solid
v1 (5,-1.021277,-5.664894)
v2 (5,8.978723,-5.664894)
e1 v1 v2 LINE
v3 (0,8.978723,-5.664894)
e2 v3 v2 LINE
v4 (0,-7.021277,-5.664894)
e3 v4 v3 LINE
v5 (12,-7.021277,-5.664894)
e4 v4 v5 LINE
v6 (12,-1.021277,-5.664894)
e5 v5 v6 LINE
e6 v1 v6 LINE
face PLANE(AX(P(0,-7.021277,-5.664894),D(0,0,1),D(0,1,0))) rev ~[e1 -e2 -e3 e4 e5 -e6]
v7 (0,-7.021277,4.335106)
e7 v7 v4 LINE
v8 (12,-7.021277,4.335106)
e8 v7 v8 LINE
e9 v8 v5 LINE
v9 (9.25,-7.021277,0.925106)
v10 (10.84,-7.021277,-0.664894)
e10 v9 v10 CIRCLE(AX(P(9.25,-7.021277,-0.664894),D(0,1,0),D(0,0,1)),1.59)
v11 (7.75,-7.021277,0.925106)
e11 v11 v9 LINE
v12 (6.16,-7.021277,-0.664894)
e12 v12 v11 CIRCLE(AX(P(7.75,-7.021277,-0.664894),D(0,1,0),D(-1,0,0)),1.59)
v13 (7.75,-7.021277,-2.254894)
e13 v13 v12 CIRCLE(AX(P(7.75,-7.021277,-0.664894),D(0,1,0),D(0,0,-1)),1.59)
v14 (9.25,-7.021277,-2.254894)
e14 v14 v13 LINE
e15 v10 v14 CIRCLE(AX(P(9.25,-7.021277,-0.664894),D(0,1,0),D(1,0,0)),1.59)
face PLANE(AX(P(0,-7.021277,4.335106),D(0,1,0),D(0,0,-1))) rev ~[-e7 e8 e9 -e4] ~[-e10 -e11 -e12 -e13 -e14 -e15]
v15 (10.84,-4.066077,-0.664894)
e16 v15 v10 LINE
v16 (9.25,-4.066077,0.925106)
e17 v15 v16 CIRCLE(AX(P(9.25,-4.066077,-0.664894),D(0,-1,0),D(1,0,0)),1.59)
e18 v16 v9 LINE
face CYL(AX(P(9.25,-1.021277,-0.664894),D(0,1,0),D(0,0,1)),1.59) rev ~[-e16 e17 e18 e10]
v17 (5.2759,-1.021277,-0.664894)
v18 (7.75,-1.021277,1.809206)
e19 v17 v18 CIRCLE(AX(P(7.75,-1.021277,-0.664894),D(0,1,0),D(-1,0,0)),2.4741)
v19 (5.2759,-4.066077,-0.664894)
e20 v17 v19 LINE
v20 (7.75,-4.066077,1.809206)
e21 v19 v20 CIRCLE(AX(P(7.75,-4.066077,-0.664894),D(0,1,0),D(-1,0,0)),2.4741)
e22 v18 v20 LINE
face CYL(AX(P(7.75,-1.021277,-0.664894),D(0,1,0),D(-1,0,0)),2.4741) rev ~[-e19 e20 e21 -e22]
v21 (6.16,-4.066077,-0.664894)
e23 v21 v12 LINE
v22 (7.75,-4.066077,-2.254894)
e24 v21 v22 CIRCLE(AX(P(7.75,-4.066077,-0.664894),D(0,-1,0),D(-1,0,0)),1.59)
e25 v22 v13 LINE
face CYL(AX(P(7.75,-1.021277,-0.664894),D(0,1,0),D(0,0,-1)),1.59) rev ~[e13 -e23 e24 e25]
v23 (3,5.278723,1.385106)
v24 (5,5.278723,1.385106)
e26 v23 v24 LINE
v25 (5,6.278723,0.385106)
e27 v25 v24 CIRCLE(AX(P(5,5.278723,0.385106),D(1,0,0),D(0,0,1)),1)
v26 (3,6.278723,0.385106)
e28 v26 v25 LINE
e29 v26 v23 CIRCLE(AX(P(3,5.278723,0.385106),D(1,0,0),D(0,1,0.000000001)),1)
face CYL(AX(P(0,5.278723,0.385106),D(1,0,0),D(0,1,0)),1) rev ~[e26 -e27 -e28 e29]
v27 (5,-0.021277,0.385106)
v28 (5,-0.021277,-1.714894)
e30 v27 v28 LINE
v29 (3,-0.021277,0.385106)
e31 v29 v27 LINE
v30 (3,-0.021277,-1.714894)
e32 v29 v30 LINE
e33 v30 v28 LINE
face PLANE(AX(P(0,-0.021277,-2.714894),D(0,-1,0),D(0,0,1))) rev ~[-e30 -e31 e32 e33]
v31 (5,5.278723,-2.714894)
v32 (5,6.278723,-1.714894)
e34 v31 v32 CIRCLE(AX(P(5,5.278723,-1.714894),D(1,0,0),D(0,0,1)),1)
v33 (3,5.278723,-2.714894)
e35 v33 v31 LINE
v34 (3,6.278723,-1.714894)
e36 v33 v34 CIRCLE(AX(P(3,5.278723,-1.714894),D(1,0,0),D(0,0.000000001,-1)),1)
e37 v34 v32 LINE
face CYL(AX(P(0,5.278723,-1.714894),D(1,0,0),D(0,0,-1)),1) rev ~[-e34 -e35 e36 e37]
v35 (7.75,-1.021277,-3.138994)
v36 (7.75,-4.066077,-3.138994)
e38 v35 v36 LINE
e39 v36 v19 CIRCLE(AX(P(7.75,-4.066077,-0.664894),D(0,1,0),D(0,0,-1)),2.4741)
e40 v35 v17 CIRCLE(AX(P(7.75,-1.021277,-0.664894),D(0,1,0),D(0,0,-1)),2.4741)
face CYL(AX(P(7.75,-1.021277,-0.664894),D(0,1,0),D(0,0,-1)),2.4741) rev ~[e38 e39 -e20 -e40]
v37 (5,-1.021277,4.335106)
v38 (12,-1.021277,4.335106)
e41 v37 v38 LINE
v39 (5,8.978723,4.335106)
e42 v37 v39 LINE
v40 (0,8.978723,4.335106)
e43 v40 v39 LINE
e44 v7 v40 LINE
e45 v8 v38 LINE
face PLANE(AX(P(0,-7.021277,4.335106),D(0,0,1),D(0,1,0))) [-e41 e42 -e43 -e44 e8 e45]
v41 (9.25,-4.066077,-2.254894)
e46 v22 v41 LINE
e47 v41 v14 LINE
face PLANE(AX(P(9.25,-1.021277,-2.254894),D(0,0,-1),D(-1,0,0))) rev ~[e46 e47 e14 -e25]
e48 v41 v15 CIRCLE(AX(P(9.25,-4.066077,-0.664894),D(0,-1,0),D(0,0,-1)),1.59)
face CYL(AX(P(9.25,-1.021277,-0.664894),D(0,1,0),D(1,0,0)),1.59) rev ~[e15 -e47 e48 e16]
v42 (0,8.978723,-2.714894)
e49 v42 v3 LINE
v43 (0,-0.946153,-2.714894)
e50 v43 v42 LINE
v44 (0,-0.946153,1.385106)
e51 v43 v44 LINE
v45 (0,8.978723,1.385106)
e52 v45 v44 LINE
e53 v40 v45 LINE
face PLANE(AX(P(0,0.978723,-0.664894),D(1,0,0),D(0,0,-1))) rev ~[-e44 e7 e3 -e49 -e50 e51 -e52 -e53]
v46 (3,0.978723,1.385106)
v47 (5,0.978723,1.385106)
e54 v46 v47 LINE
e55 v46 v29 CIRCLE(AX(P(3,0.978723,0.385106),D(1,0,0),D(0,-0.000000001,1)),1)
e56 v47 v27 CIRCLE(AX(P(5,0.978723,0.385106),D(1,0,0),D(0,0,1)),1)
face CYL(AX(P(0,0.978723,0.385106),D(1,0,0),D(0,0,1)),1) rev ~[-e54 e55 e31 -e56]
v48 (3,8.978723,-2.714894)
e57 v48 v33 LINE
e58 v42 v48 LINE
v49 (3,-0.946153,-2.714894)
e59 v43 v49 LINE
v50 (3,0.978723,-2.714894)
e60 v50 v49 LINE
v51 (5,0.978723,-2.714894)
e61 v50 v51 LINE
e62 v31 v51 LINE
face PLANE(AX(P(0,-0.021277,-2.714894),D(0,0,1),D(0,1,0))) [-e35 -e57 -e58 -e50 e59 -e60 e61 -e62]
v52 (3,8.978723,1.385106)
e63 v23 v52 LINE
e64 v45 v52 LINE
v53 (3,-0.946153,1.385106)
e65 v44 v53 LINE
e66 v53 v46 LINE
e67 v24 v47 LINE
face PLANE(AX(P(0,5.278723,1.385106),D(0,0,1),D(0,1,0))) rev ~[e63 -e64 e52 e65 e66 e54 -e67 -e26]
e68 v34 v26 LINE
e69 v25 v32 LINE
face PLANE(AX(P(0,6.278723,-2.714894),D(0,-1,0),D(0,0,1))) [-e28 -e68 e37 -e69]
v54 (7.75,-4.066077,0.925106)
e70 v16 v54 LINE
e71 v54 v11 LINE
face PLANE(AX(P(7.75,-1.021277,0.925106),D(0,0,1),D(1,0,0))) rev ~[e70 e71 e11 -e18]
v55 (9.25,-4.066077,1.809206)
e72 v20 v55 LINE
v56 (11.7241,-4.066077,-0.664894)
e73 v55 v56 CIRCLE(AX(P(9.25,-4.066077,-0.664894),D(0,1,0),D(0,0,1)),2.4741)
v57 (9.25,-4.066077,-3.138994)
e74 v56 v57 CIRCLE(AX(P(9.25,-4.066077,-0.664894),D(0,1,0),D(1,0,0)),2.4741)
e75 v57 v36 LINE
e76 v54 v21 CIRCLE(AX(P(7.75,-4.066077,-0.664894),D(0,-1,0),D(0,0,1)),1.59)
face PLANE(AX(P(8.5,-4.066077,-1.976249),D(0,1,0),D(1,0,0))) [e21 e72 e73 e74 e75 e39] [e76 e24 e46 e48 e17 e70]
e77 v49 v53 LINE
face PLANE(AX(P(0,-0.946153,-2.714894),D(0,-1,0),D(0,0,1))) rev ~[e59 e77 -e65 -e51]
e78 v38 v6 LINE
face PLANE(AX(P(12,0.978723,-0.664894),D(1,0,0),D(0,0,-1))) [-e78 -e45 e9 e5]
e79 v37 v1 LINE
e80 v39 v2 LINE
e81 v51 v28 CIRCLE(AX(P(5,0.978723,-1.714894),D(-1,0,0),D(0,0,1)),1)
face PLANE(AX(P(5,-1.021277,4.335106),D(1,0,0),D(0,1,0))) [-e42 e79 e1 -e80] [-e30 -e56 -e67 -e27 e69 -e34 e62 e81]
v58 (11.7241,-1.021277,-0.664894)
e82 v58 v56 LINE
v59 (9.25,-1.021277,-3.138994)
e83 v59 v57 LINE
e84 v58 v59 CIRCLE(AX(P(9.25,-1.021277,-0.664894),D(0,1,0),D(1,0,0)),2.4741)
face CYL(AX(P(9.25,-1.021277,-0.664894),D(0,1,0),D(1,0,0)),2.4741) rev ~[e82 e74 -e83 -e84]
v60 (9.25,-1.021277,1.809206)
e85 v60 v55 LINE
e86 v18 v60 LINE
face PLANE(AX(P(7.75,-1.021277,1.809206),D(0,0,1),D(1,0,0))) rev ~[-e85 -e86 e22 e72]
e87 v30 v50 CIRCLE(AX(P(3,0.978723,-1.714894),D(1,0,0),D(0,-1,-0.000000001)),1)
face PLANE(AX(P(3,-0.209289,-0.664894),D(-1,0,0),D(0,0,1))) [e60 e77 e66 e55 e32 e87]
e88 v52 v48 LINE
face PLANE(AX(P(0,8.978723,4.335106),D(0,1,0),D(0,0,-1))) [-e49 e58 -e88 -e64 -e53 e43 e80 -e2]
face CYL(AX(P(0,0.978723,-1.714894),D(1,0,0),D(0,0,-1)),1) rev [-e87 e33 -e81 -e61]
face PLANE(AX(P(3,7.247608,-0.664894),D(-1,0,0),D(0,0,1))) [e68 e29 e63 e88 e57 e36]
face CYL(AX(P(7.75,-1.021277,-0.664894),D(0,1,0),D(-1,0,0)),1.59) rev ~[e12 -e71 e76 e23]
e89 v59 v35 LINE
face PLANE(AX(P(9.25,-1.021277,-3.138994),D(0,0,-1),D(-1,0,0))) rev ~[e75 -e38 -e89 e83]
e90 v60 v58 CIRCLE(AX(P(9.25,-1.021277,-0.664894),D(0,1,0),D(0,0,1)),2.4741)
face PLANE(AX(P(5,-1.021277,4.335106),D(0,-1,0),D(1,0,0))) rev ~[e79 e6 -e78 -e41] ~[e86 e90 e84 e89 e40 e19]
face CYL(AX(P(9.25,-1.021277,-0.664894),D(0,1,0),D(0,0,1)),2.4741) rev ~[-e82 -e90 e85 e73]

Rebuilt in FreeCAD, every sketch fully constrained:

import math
import FreeCAD as App
import Part
import Sketcher
Q = App.Units.Quantity


def edges_at(feature, points):
    """Names of the edges that pass closest to the given points."""
    edges = feature.Shape.Edges
    near = lambda p: min(range(len(edges)), key=lambda i: edges[i].distToShape(Part.Vertex(*p))[0])
    return sorted({f"Edge{near(p) + 1}" for p in points})

doc = App.newDocument("Part")
body = doc.addObject("PartDesign::Body", "Body")

# Sketch on YZ plane
sketch1 = body.newObject("Sketcher::SketchObject", "Sketch")
sketch1.AttachmentSupport = (doc.getObject("YZ_Plane"), [""])
sketch1.MapMode = "FlatFace"
sketch1.addGeometry([
    Part.LineSegment(App.Vector(9, 4, 0), App.Vector(-7, 4, 0)),
    Part.LineSegment(App.Vector(-7, 4, 0), App.Vector(-7, -6, 0)),
    Part.LineSegment(App.Vector(-7, -6, 0), App.Vector(9, -6, 0)),
    Part.LineSegment(App.Vector(9, -6, 0), App.Vector(9, 4, 0)),
], False)
sketch1.addConstraint([
    Sketcher.Constraint("Coincident", 0, 2, 1, 1),
    Sketcher.Constraint("Coincident", 1, 2, 2, 1),
    Sketcher.Constraint("Coincident", 2, 2, 3, 1),
    Sketcher.Constraint("Coincident", 3, 2, 0, 1),
    Sketcher.Constraint("Horizontal", 0),
    Sketcher.Constraint("Vertical", 1),
    Sketcher.Constraint("Horizontal", 2),
    Sketcher.Constraint("Vertical", 3),
    Sketcher.Constraint("DistanceX", 0, 2, 0, 1, Q("16 mm")),
    Sketcher.Constraint("DistanceY", 1, 2, 1, 1, Q("10 mm")),
    Sketcher.Constraint("DistanceX", 0, 2, -1, 1, Q("7.021277 mm")),
    Sketcher.Constraint("DistanceY", -1, 1, 0, 2, Q("4.335106 mm")),
])
pad1 = body.newObject("PartDesign::Pad", "Pad")
pad1.Profile = sketch1
pad1.Length = 12

# Sketch on XY plane
sketch2 = body.newObject("Sketcher::SketchObject", "Sketch001")
sketch2.AttachmentSupport = (doc.getObject("XY_Plane"), [""])
sketch2.MapMode = "FlatFace"
sketch2.AttachmentOffset = App.Placement(App.Vector(0, 0, 4.335106), App.Rotation())
sketch2.addGeometry([
    Part.LineSegment(App.Vector(5, 9, 0), App.Vector(5, -1, 0)),
    Part.LineSegment(App.Vector(5, -1, 0), App.Vector(12, -1, 0)),
    Part.LineSegment(App.Vector(12, -1, 0), App.Vector(12, 9, 0)),
    Part.LineSegment(App.Vector(12, 9, 0), App.Vector(5, 9, 0)),
], False)
sketch2.addConstraint([
    Sketcher.Constraint("Coincident", 0, 2, 1, 1),
    Sketcher.Constraint("Coincident", 1, 2, 2, 1),
    Sketcher.Constraint("Coincident", 2, 2, 3, 1),
    Sketcher.Constraint("Coincident", 3, 2, 0, 1),
    Sketcher.Constraint("Vertical", 0),
    Sketcher.Constraint("Horizontal", 1),
    Sketcher.Constraint("Vertical", 2),
    Sketcher.Constraint("Horizontal", 3),
    Sketcher.Constraint("DistanceX", 1, 1, 1, 2, Q("7 mm")),
    Sketcher.Constraint("DistanceY", 0, 2, 0, 1, Q("10 mm")),
    Sketcher.Constraint("DistanceX", -1, 1, 0, 2, Q("5 mm")),
    Sketcher.Constraint("DistanceY", 0, 2, -1, 1, Q("1.021277 mm")),
])
pocket1 = body.newObject("PartDesign::Pocket", "Pocket")
pocket1.Profile = sketch2
pocket1.Type = "ThroughAll"

# Sketch on XZ plane
sketch3 = body.newObject("Sketcher::SketchObject", "Sketch002")
sketch3.AttachmentSupport = (doc.getObject("XZ_Plane"), [""])
sketch3.MapMode = "FlatFace"
sketch3.AttachmentOffset = App.Placement(App.Vector(0, 0, 1.021277), App.Rotation())
sketch3.addGeometry([
    Part.ArcOfCircle(Part.Circle(App.Vector(7.8, -0.7, 0), App.Vector(0, 0, 1), 1.6), math.radians(180), math.radians(270)),  # 0
    Part.ArcOfCircle(Part.Circle(App.Vector(7.8, -0.7, 0), App.Vector(0, 0, 1), 1.6), math.radians(90), math.radians(180)),  # 1
    Part.LineSegment(App.Vector(7.8, 0.9, 0), App.Vector(9.2, 0.9, 0)),  # 2
    Part.ArcOfCircle(Part.Circle(App.Vector(9.2, -0.7, 0), App.Vector(0, 0, 1), 1.6), math.radians(0), math.radians(90)),  # 3
    Part.ArcOfCircle(Part.Circle(App.Vector(9.2, -0.7, 0), App.Vector(0, 0, 1), 1.6), math.radians(-90), math.radians(0)),  # 4
    Part.LineSegment(App.Vector(9.2, -2.3, 0), App.Vector(7.8, -2.3, 0)),  # 5
], False)
sketch3.addConstraint([
    Sketcher.Constraint("Tangent", 0, 1, 1, 2),
    Sketcher.Constraint("Tangent", 1, 1, 2, 1),
    Sketcher.Constraint("Tangent", 2, 2, 3, 2),
    Sketcher.Constraint("Tangent", 3, 1, 4, 2),
    Sketcher.Constraint("Tangent", 4, 1, 5, 1),
    Sketcher.Constraint("Tangent", 5, 2, 0, 2),
    Sketcher.Constraint("Horizontal", 2),
    Sketcher.Constraint("Horizontal", 5),
    Sketcher.Constraint("Equal", 0, 1),
    Sketcher.Constraint("Equal", 1, 3),
    Sketcher.Constraint("Horizontal", 4, 3, 0, 1),
    Sketcher.Constraint("Horizontal", 0, 1, 3, 1),
    Sketcher.Constraint("Radius", 0, Q("1.59 mm")),
    Sketcher.Constraint("DistanceX", 2, 1, 2, 2, Q("1.5 mm")),
    Sketcher.Constraint("DistanceX", -1, 1, 0, 3, Q("7.75 mm")),
    Sketcher.Constraint("DistanceY", 0, 3, -1, 1, Q("0.664894 mm")),
])
pocket2 = body.newObject("PartDesign::Pocket", "Pocket001")
pocket2.Profile = sketch3
pocket2.Type = "ThroughAll"
pocket2.Reversed = True

# Sketch on XZ plane
sketch4 = body.newObject("Sketcher::SketchObject", "Sketch003")
sketch4.AttachmentSupport = (doc.getObject("XZ_Plane"), [""])
sketch4.MapMode = "FlatFace"
sketch4.AttachmentOffset = App.Placement(App.Vector(0, 0, 1.021277), App.Rotation())
sketch4.addGeometry([
    Part.ArcOfCircle(Part.Circle(App.Vector(7.8, -0.7, 0), App.Vector(0, 0, 1), 2.5), math.radians(-180), math.radians(-90)),  # 0
    Part.ArcOfCircle(Part.Circle(App.Vector(7.8, -0.7, 0), App.Vector(0, 0, 1), 2.5), math.radians(90), math.radians(180)),  # 1
    Part.LineSegment(App.Vector(7.8, 1.8, 0), App.Vector(9.2, 1.8, 0)),  # 2
    Part.ArcOfCircle(Part.Circle(App.Vector(9.2, -0.7, 0), App.Vector(0, 0, 1), 2.5), math.radians(0), math.radians(90)),  # 3
    Part.ArcOfCircle(Part.Circle(App.Vector(9.2, -0.7, 0), App.Vector(0, 0, 1), 2.5), math.radians(-90), math.radians(0)),  # 4
    Part.LineSegment(App.Vector(9.2, -3.1, 0), App.Vector(7.8, -3.1, 0)),  # 5
    Part.ArcOfCircle(Part.Circle(App.Vector(7.8, -0.7, 0), App.Vector(0, 0, 1), 1.6), math.radians(180), math.radians(270)),  # 6
    Part.LineSegment(App.Vector(7.8, -2.3, 0), App.Vector(9.2, -2.3, 0)),  # 7
    Part.ArcOfCircle(Part.Circle(App.Vector(9.2, -0.7, 0), App.Vector(0, 0, 1), 1.6), math.radians(-90), math.radians(0)),  # 8
    Part.ArcOfCircle(Part.Circle(App.Vector(9.2, -0.7, 0), App.Vector(0, 0, 1), 1.6), math.radians(0), math.radians(90)),  # 9
    Part.LineSegment(App.Vector(9.2, 0.9, 0), App.Vector(7.8, 0.9, 0)),  # 10
    Part.ArcOfCircle(Part.Circle(App.Vector(7.8, -0.7, 0), App.Vector(0, 0, 1), 1.6), math.radians(90), math.radians(180)),  # 11
], False)
sketch4.addConstraint([
    Sketcher.Constraint("Tangent", 0, 1, 1, 2),
    Sketcher.Constraint("Tangent", 1, 1, 2, 1),
    Sketcher.Constraint("Tangent", 2, 2, 3, 2),
    Sketcher.Constraint("Tangent", 3, 1, 4, 2),
    Sketcher.Constraint("Tangent", 4, 1, 5, 1),
    Sketcher.Constraint("Tangent", 5, 2, 0, 2),
    Sketcher.Constraint("Tangent", 6, 2, 7, 1),
    Sketcher.Constraint("Tangent", 7, 2, 8, 1),
    Sketcher.Constraint("Tangent", 8, 2, 9, 1),
    Sketcher.Constraint("Tangent", 9, 2, 10, 1),
    Sketcher.Constraint("Tangent", 10, 2, 11, 1),
    Sketcher.Constraint("Tangent", 11, 2, 6, 1),
    Sketcher.Constraint("Horizontal", 2),
    Sketcher.Constraint("Horizontal", 5),
    Sketcher.Constraint("Horizontal", 7),
    Sketcher.Constraint("Horizontal", 10),
    Sketcher.Constraint("Coincident", 6, 3, 0, 3),
    Sketcher.Constraint("Coincident", 8, 3, 3, 3),
    Sketcher.Constraint("Equal", 0, 1),
    Sketcher.Constraint("Equal", 1, 3),
    Sketcher.Constraint("Equal", 8, 9),
    Sketcher.Constraint("Horizontal", 11, 3, 0, 1),
    Sketcher.Constraint("Horizontal", 0, 1, 3, 1),
    Sketcher.Constraint("Horizontal", 3, 1, 8, 2),
    Sketcher.Constraint("Horizontal", 8, 2, 11, 2),
    Sketcher.Constraint("Radius", 6, Q("1.59 mm")),
    Sketcher.Constraint("DistanceX", 2, 1, 2, 2, Q("1.5 mm")),
    Sketcher.Constraint("Radius", 0, Q("2.4741 mm")),
    Sketcher.Constraint("DistanceX", -1, 1, 0, 3, Q("7.75 mm")),
    Sketcher.Constraint("DistanceY", 0, 3, -1, 1, Q("0.664894 mm")),
])
pocket3 = body.newObject("PartDesign::Pocket", "Pocket002")
pocket3.Profile = sketch4
pocket3.Length = 3.0448
pocket3.Reversed = True

# Sketch on YZ plane
sketch5 = body.newObject("Sketcher::SketchObject", "Sketch004")
sketch5.AttachmentSupport = (doc.getObject("YZ_Plane"), [""])
sketch5.MapMode = "FlatFace"
sketch5.addGeometry([
    Part.LineSegment(App.Vector(6.3, -2.7, 0), App.Vector(0, -2.7, 0)),
    Part.LineSegment(App.Vector(0, -2.7, 0), App.Vector(0, 1.4, 0)),
    Part.LineSegment(App.Vector(0, 1.4, 0), App.Vector(6.3, 1.4, 0)),
    Part.LineSegment(App.Vector(6.3, 1.4, 0), App.Vector(6.3, -2.7, 0)),
], False)
sketch5.addConstraint([
    Sketcher.Constraint("Coincident", 0, 2, 1, 1),
    Sketcher.Constraint("Coincident", 1, 2, 2, 1),
    Sketcher.Constraint("Coincident", 2, 2, 3, 1),
    Sketcher.Constraint("Coincident", 3, 2, 0, 1),
    Sketcher.Constraint("Horizontal", 0),
    Sketcher.Constraint("Vertical", 1),
    Sketcher.Constraint("Horizontal", 2),
    Sketcher.Constraint("Vertical", 3),
    Sketcher.Constraint("DistanceX", 0, 2, 0, 1, Q("6.3 mm")),
    Sketcher.Constraint("DistanceY", 1, 1, 1, 2, Q("4.1 mm")),
    Sketcher.Constraint("DistanceX", 0, 2, -1, 1, Q("0.021277 mm")),
    Sketcher.Constraint("DistanceY", 0, 2, -1, 1, Q("2.714894 mm")),
])
pocket4 = body.newObject("PartDesign::Pocket", "Pocket003")
pocket4.Profile = sketch5
pocket4.Type = "ThroughAll"
pocket4.Reversed = True
doc.recompute()

fillet = body.newObject("PartDesign::Fillet", "Fillet")
fillet.Base = (pocket4, edges_at(pocket4, [
    (2.5, -0.021, -2.715),
    (2.5, 6.279, -2.715),
    (2.5, 6.279, 1.385),
    (2.5, -0.021, 1.385),
]))
fillet.Radius = 1

# Sketch on YZ plane
sketch6 = body.newObject("Sketcher::SketchObject", "Sketch005")
sketch6.AttachmentSupport = (doc.getObject("YZ_Plane"), [""])
sketch6.MapMode = "FlatFace"
sketch6.addGeometry([
    Part.LineSegment(App.Vector(9, 1.4, 0), App.Vector(9, -2.7, 0)),  # 0
    Part.LineSegment(App.Vector(9, -2.7, 0), App.Vector(5.3, -2.7, 0)),  # 1
    Part.ArcOfCircle(Part.Circle(App.Vector(5.3, -1.7, 0), App.Vector(0, 0, 1), 1), math.radians(-90), math.radians(0)),  # 2
    Part.LineSegment(App.Vector(6.3, -1.7, 0), App.Vector(6.3, 0.4, 0)),  # 3
    Part.ArcOfCircle(Part.Circle(App.Vector(5.3, 0.4, 0), App.Vector(0, 0, 1), 1), math.radians(0), math.radians(90)),  # 4
    Part.LineSegment(App.Vector(5.3, 1.4, 0), App.Vector(9, 1.4, 0)),  # 5
    Part.ArcOfCircle(Part.Circle(App.Vector(1, -1.7, 0), App.Vector(0, 0, 1), 1), math.radians(-180), math.radians(-90)),  # 6
    Part.LineSegment(App.Vector(1, -2.7, 0), App.Vector(-0.9, -2.7, 0)),  # 7
    Part.LineSegment(App.Vector(-0.9, -2.7, 0), App.Vector(-0.9, 1.4, 0)),  # 8
    Part.LineSegment(App.Vector(-0.9, 1.4, 0), App.Vector(1, 1.4, 0)),  # 9
    Part.ArcOfCircle(Part.Circle(App.Vector(1, 0.4, 0), App.Vector(0, 0, 1), 1), math.radians(90), math.radians(180)),  # 10
    Part.LineSegment(App.Vector(0, 0.4, 0), App.Vector(0, -1.7, 0)),  # 11
], False)
sketch6.addConstraint([
    Sketcher.Constraint("Coincident", 0, 2, 1, 1),
    Sketcher.Constraint("Tangent", 1, 2, 2, 1),
    Sketcher.Constraint("Tangent", 2, 2, 3, 1),
    Sketcher.Constraint("Tangent", 3, 2, 4, 1),
    Sketcher.Constraint("Tangent", 4, 2, 5, 1),
    Sketcher.Constraint("Coincident", 5, 2, 0, 1),
    Sketcher.Constraint("Tangent", 6, 2, 7, 1),
    Sketcher.Constraint("Coincident", 7, 2, 8, 1),
    Sketcher.Constraint("Coincident", 8, 2, 9, 1),
    Sketcher.Constraint("Tangent", 9, 2, 10, 1),
    Sketcher.Constraint("Tangent", 10, 2, 11, 1),
    Sketcher.Constraint("Tangent", 11, 2, 6, 1),
    Sketcher.Constraint("Vertical", 0),
    Sketcher.Constraint("Horizontal", 1),
    Sketcher.Constraint("Vertical", 3),
    Sketcher.Constraint("Horizontal", 5),
    Sketcher.Constraint("Horizontal", 7),
    Sketcher.Constraint("Vertical", 8),
    Sketcher.Constraint("Horizontal", 9),
    Sketcher.Constraint("Vertical", 11),
    Sketcher.Constraint("Equal", 2, 4),
    Sketcher.Constraint("Equal", 4, 6),
    Sketcher.Constraint("Equal", 6, 10),
    Sketcher.Constraint("Horizontal", 2, 3, 6, 3),
    Sketcher.Constraint("Horizontal", 4, 3, 10, 3),
    Sketcher.Constraint("Radius", 2, Q("1 mm")),
    Sketcher.Constraint("DistanceX", 1, 2, 1, 1, Q("3.7 mm")),
    Sketcher.Constraint("DistanceY", 0, 2, 0, 1, Q("4.1 mm")),
    Sketcher.Constraint("DistanceX", 6, 3, 0, 2, Q("8 mm")),
    Sketcher.Constraint("DistanceX", 7, 2, 7, 1, Q("1.924876 mm")),
    Sketcher.Constraint("DistanceX", -1, 1, 2, 3, Q("5.278723 mm")),
    Sketcher.Constraint("DistanceY", 2, 3, -1, 1, Q("1.714894 mm")),
])
pocket5 = body.newObject("PartDesign::Pocket", "Pocket004")
pocket5.Profile = sketch6
pocket5.Length = 3
pocket5.Reversed = True

doc.recompute()
